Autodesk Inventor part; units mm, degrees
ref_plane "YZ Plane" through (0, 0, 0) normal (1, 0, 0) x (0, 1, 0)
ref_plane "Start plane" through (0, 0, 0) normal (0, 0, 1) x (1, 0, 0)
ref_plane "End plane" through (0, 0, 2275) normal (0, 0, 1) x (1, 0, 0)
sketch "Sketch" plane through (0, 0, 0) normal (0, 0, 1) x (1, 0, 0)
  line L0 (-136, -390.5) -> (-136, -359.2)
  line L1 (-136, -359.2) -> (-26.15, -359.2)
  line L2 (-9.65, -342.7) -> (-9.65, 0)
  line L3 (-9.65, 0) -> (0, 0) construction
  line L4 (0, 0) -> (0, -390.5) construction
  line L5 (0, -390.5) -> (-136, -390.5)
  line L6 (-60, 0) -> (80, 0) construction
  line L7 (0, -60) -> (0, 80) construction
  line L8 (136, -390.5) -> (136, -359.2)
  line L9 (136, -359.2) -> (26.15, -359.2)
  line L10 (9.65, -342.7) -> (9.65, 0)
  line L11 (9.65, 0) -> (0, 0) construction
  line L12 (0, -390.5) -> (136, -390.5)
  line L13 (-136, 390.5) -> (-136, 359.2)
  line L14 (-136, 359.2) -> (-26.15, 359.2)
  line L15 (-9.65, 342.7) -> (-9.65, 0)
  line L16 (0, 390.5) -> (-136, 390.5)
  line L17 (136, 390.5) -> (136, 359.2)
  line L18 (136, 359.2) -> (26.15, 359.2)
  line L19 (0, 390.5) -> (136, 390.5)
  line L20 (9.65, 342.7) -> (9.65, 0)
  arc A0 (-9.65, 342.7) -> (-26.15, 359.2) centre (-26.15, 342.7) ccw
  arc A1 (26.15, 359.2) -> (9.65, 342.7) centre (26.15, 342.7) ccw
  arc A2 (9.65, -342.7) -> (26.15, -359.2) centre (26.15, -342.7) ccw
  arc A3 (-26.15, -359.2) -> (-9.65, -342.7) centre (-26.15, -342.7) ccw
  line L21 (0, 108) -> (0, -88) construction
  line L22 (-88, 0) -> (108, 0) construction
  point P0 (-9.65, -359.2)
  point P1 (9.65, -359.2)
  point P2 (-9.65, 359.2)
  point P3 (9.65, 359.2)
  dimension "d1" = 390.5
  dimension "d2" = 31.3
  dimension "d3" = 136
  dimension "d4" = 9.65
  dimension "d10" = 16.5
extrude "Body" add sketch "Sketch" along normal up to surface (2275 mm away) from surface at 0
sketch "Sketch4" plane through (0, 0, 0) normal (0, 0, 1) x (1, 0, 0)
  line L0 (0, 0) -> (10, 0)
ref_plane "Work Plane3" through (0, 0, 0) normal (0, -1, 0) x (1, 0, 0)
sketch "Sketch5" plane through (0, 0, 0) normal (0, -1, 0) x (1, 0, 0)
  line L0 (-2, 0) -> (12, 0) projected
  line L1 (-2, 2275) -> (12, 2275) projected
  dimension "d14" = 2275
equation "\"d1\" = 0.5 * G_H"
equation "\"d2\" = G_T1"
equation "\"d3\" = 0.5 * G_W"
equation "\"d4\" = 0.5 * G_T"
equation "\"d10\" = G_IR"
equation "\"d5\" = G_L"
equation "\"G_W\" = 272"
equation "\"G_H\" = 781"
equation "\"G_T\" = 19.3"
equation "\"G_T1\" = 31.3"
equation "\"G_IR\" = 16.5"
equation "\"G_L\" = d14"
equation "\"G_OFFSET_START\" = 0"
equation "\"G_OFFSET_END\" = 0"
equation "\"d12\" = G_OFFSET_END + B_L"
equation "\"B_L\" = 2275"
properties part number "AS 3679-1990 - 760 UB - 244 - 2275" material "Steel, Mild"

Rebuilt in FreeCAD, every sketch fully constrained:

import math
import FreeCAD as App
import Part
import Sketcher
Q = App.Units.Quantity

doc = App.newDocument("Part")
body = doc.addObject("PartDesign::Body", "Body")

# Sketch on XY plane
sketch1 = body.newObject("Sketcher::SketchObject", "Sketch")
sketch1.AttachmentSupport = (doc.getObject("XY_Plane"), [""])
sketch1.MapMode = "FlatFace"
sketch1.addGeometry([
    Part.LineSegment(App.Vector(-136, -359, 0), App.Vector(-136, -390, 0)),  # 0
    Part.LineSegment(App.Vector(-136, -390, 0), App.Vector(136, -390, 0)),  # 1
    Part.LineSegment(App.Vector(136, -390, 0), App.Vector(136, -359, 0)),  # 2
    Part.LineSegment(App.Vector(136, -359, 0), App.Vector(26, -359, 0)),  # 3
    Part.ArcOfCircle(Part.Circle(App.Vector(26, -343, 0), App.Vector(0, 0, 1), 16), math.radians(180), math.radians(270)),  # 4
    Part.LineSegment(App.Vector(10, -343, 0), App.Vector(10, 343, 0)),  # 5
    Part.ArcOfCircle(Part.Circle(App.Vector(26, 343, 0), App.Vector(0, 0, 1), 16), math.radians(90), math.radians(180)),  # 6
    Part.LineSegment(App.Vector(26, 359, 0), App.Vector(136, 359, 0)),  # 7
    Part.LineSegment(App.Vector(136, 359, 0), App.Vector(136, 390, 0)),  # 8
    Part.LineSegment(App.Vector(136, 390, 0), App.Vector(-136, 390, 0)),  # 9
    Part.LineSegment(App.Vector(-136, 390, 0), App.Vector(-136, 359, 0)),  # 10
    Part.LineSegment(App.Vector(-136, 359, 0), App.Vector(-26, 359, 0)),  # 11
    Part.ArcOfCircle(Part.Circle(App.Vector(-26, 343, 0), App.Vector(0, 0, 1), 16), math.radians(0), math.radians(90)),  # 12
    Part.LineSegment(App.Vector(-10, 343, 0), App.Vector(-10, -343, 0)),  # 13
    Part.ArcOfCircle(Part.Circle(App.Vector(-26, -343, 0), App.Vector(0, 0, 1), 16), math.radians(-90), math.radians(0)),  # 14
    Part.LineSegment(App.Vector(-26, -359, 0), App.Vector(-136, -359, 0)),  # 15
], False)
sketch1.addConstraint([
    Sketcher.Constraint("Coincident", 0, 2, 1, 1),
    Sketcher.Constraint("Coincident", 1, 2, 2, 1),
    Sketcher.Constraint("Coincident", 2, 2, 3, 1),
    Sketcher.Constraint("Tangent", 3, 2, 4, 2),
    Sketcher.Constraint("Tangent", 4, 1, 5, 1),
    Sketcher.Constraint("Tangent", 5, 2, 6, 2),
    Sketcher.Constraint("Tangent", 6, 1, 7, 1),
    Sketcher.Constraint("Coincident", 7, 2, 8, 1),
    Sketcher.Constraint("Coincident", 8, 2, 9, 1),
    Sketcher.Constraint("Coincident", 9, 2, 10, 1),
    Sketcher.Constraint("Coincident", 10, 2, 11, 1),
    Sketcher.Constraint("Tangent", 11, 2, 12, 2),
    Sketcher.Constraint("Tangent", 12, 1, 13, 1),
    Sketcher.Constraint("Tangent", 13, 2, 14, 2),
    Sketcher.Constraint("Tangent", 14, 1, 15, 1),
    Sketcher.Constraint("Coincident", 15, 2, 0, 1),
    Sketcher.Constraint("Vertical", 0),
    Sketcher.Constraint("Horizontal", 1),
    Sketcher.Constraint("Vertical", 2),
    Sketcher.Constraint("Horizontal", 3),
    Sketcher.Constraint("Vertical", 5),
    Sketcher.Constraint("Horizontal", 7),
    Sketcher.Constraint("Vertical", 8),
    Sketcher.Constraint("Horizontal", 9),
    Sketcher.Constraint("Vertical", 10),
    Sketcher.Constraint("Horizontal", 11),
    Sketcher.Constraint("Vertical", 13),
    Sketcher.Constraint("Horizontal", 15),
    Sketcher.Constraint("Equal", 4, 6),
    Sketcher.Constraint("Equal", 6, 12),
    Sketcher.Constraint("Equal", 12, 14),
    Sketcher.Constraint("Symmetric", 4, 3, 12, 3, -1, 1),
    Sketcher.Constraint("Symmetric", 0, 2, 8, 2, -1, 1),
    Sketcher.Constraint("Symmetric", 7, 2, 10, 2, -2),
    Sketcher.Constraint("Symmetric", 2, 2, 15, 2, -2),
    Sketcher.Constraint("Radius", 4, Q("16.5 mm")),
    Sketcher.Constraint("DistanceY", 0, 2, 0, 1, Q("31.3 mm")),
    Sketcher.Constraint("DistanceX", 0, 2, -1, 1, Q("136 mm")),
    Sketcher.Constraint("DistanceY", 0, 2, -1, 1, Q("390.5 mm")),
    Sketcher.Constraint("DistanceX", -1, 1, 4, 1, Q("9.65 mm")),
])
pad1 = body.newObject("PartDesign::Pad", "Pad")
pad1.Profile = sketch1
pad1.Length = 2275

doc.recompute()
